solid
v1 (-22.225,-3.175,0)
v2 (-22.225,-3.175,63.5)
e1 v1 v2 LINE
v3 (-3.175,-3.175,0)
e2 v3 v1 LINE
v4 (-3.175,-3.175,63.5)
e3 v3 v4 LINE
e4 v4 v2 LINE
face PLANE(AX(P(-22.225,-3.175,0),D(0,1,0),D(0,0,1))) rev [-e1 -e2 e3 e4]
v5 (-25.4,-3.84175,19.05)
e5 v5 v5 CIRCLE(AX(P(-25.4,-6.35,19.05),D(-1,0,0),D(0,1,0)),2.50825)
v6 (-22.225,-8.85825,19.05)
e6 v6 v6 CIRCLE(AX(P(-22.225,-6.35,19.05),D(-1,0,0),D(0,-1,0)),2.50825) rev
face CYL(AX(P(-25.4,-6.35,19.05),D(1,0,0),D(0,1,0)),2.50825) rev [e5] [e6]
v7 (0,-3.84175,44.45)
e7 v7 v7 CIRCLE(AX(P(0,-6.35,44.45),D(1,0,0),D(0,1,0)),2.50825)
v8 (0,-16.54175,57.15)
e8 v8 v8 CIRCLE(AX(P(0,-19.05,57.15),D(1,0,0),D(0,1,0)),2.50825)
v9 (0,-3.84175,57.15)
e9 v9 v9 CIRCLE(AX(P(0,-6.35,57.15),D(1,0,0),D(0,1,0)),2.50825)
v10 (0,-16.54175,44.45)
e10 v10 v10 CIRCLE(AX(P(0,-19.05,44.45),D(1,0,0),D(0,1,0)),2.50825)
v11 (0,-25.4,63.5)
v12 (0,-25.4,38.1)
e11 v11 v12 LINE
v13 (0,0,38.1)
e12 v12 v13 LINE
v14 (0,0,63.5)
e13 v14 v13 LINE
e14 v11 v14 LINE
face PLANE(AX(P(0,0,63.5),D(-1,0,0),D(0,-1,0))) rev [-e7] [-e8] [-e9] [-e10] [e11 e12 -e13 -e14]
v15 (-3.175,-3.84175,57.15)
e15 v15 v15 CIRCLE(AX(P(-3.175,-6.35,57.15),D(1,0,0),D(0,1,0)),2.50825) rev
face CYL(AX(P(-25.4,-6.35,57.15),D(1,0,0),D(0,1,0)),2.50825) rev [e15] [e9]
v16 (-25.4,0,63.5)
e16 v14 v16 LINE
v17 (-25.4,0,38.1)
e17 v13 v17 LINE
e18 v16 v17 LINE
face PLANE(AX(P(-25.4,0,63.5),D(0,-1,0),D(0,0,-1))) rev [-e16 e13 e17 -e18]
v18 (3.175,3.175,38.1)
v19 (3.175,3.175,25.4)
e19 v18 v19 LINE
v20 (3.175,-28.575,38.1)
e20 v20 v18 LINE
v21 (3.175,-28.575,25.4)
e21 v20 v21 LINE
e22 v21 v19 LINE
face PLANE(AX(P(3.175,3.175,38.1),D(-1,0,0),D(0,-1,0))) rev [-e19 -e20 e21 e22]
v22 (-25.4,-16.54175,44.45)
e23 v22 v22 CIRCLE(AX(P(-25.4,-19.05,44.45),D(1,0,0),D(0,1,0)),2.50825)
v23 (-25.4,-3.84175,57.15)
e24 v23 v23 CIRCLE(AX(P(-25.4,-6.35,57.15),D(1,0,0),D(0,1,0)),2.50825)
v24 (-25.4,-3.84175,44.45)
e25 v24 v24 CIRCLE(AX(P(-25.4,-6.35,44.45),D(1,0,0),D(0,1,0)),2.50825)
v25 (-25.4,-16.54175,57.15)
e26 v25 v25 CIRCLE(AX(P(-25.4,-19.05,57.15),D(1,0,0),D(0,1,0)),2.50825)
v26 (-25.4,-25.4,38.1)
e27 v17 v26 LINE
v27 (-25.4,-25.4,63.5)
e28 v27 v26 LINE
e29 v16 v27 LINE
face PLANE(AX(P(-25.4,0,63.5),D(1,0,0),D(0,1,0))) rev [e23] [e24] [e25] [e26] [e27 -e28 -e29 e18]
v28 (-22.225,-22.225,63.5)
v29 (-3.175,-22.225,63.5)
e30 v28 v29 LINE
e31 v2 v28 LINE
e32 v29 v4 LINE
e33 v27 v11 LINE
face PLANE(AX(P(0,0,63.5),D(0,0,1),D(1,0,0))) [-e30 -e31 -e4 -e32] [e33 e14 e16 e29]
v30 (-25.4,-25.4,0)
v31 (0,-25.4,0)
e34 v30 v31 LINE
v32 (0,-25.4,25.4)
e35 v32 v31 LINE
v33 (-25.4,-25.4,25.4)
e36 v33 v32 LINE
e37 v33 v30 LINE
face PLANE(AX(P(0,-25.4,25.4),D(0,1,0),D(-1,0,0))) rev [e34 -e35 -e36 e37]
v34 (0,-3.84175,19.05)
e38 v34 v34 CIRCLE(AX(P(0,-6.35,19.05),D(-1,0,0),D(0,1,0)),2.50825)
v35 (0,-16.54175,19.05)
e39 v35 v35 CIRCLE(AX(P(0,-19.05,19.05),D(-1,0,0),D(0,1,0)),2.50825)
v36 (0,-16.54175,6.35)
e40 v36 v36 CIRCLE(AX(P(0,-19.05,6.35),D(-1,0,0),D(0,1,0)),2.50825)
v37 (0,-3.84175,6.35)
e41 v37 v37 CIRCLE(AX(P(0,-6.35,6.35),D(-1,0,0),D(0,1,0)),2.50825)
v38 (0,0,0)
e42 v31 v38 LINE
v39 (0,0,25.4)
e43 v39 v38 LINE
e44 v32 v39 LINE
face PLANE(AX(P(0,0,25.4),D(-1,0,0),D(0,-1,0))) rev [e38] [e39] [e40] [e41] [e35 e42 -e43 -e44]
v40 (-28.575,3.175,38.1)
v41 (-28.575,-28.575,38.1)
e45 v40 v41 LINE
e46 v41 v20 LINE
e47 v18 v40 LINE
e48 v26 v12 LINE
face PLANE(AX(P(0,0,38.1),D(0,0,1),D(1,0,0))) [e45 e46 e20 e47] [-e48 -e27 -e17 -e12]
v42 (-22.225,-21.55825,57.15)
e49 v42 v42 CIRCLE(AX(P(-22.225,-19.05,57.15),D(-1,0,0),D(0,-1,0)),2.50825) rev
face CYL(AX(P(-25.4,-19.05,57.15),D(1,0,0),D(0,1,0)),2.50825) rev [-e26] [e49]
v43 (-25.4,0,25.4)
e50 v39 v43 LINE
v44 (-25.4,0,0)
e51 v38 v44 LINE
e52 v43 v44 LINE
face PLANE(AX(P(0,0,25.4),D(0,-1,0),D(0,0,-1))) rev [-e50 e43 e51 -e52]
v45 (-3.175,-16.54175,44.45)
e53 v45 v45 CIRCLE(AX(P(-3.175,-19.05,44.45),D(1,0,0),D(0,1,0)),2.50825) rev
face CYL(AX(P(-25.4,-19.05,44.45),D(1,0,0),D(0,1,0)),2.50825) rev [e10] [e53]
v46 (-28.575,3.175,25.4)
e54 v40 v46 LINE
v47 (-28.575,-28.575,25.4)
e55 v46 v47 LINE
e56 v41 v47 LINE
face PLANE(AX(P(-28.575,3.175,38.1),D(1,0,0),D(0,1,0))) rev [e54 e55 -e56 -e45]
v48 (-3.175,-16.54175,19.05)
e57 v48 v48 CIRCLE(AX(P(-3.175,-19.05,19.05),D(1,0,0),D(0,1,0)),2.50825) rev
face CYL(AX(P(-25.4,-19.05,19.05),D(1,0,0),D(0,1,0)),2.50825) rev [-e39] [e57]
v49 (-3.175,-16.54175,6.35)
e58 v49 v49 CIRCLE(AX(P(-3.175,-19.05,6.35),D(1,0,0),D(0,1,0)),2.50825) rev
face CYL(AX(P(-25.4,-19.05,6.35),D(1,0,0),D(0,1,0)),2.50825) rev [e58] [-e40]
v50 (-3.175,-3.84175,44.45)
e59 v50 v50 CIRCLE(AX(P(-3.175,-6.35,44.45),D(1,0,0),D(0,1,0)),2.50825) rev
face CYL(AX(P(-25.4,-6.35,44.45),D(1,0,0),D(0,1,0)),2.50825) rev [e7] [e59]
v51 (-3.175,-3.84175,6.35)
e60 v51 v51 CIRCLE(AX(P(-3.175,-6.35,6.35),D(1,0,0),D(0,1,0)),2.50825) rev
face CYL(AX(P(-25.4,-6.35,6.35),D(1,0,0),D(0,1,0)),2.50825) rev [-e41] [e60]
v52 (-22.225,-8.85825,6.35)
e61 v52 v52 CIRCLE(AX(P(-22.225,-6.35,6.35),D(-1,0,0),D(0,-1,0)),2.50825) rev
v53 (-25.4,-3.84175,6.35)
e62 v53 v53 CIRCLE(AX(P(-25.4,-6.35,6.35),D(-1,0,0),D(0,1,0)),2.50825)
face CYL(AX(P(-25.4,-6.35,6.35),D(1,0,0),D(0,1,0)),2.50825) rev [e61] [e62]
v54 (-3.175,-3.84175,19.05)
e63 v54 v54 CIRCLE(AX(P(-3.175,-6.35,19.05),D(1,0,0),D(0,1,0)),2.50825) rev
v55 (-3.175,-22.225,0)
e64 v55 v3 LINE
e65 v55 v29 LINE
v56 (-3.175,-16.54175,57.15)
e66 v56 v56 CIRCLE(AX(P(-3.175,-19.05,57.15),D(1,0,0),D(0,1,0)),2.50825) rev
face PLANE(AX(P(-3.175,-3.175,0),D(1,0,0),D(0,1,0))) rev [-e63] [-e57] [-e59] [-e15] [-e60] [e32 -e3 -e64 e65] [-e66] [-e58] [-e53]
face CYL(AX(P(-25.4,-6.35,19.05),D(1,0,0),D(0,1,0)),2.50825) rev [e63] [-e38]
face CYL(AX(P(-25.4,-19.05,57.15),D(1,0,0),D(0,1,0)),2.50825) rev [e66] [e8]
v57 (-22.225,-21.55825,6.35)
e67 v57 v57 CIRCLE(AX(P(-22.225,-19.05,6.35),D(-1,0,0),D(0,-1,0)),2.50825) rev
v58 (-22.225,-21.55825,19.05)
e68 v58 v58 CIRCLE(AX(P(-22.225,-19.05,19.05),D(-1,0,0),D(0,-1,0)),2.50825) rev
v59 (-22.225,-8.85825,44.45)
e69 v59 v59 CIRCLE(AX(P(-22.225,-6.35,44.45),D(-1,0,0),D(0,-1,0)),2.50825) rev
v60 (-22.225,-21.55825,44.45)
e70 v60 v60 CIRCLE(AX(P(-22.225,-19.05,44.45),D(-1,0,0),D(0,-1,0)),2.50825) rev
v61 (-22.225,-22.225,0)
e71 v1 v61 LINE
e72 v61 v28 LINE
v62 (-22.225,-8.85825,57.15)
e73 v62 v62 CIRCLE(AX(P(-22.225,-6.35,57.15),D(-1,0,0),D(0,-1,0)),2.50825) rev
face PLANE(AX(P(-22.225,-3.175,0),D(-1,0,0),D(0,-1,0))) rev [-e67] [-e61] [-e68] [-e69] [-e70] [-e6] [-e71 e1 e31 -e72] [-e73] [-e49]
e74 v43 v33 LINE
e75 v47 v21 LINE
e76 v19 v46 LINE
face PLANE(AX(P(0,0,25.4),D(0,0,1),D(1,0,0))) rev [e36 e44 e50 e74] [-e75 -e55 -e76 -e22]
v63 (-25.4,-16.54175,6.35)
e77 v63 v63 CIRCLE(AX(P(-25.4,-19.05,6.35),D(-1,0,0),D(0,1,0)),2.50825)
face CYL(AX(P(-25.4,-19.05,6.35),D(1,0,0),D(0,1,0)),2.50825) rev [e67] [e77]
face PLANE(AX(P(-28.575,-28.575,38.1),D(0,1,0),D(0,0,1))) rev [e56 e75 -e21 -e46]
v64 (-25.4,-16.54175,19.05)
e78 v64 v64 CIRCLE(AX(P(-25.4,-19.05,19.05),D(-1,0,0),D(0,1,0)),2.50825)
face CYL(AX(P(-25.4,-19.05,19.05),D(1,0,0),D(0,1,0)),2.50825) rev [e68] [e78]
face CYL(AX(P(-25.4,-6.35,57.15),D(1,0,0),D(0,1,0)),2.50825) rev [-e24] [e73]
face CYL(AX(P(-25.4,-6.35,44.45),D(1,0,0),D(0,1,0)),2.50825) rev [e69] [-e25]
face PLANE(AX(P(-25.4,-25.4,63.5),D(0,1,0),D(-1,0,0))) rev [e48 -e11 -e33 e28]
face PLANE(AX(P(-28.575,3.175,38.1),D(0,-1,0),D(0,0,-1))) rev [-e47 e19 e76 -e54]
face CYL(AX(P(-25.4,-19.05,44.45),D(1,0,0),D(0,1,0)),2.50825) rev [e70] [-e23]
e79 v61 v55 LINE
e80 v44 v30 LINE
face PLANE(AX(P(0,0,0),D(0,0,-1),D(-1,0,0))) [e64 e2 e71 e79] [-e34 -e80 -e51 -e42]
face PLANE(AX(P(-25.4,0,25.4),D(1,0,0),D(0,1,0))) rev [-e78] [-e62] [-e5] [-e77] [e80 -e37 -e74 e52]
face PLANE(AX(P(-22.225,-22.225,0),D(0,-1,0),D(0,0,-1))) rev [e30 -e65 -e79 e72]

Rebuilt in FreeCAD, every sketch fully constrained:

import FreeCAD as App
import Part
import Sketcher
Q = App.Units.Quantity

doc = App.newDocument("Part")
body = doc.addObject("PartDesign::Body", "Body")

sketch1 = body.newObject("Sketcher::SketchObject", "Sketch")
sketch1.AttachmentSupport = (doc.getObject("XY_Plane"), [""])
sketch1.MapMode = "FlatFace"
sketch1.addGeometry([
    Part.LineSegment(App.Vector(-25.4, 0, 0), App.Vector(-25.4, -25.4, 0)),
    Part.LineSegment(App.Vector(-25.4, -25.4, 0), App.Vector(0, -25.4, 0)),
    Part.LineSegment(App.Vector(0, -25.4, 0), App.Vector(0, 0, 0)),
    Part.LineSegment(App.Vector(0, 0, 0), App.Vector(-25.4, 0, 0)),
], False)
sketch1.addConstraint([
    Sketcher.Constraint("Coincident", 0, 2, 1, 1),
    Sketcher.Constraint("Coincident", 1, 2, 2, 1),
    Sketcher.Constraint("Coincident", 2, 2, 3, 1),
    Sketcher.Constraint("Coincident", 3, 2, 0, 1),
    Sketcher.Constraint("Vertical", 0),
    Sketcher.Constraint("Horizontal", 1),
    Sketcher.Constraint("Vertical", 2),
    Sketcher.Constraint("Horizontal", 3),
    Sketcher.Constraint("Coincident", 2, 2, -1, 1),
    Sketcher.Constraint("Equal", 3, 0),
    Sketcher.Constraint("DistanceX", 1, 1, 1, 2, Q("1 in")),
])
pad1 = body.newObject("PartDesign::Pad", "Pad")
pad1.Profile = sketch1
pad1.Length = Q("1 in")

sketch2 = body.newObject("Sketcher::SketchObject", "Sketch001")
sketch2.AttachmentSupport = (doc.getObject("XY_Plane"), [""])
sketch2.MapMode = "FlatFace"
sketch2.AttachmentOffset = App.Placement(App.Vector(0, 0, 1 * 25.4), App.Rotation())
sketch2.addGeometry([
    Part.LineSegment(App.Vector(-28.575, 3.175, 0), App.Vector(-28.575, -28.575, 0)),
    Part.LineSegment(App.Vector(-28.575, -28.575, 0), App.Vector(3.175, -28.575, 0)),
    Part.LineSegment(App.Vector(3.175, -28.575, 0), App.Vector(3.175, 3.175, 0)),
    Part.LineSegment(App.Vector(3.175, 3.175, 0), App.Vector(-28.575, 3.175, 0)),
], False)
sketch2.addConstraint([
    Sketcher.Constraint("Coincident", 0, 2, 1, 1),
    Sketcher.Constraint("Coincident", 1, 2, 2, 1),
    Sketcher.Constraint("Coincident", 2, 2, 3, 1),
    Sketcher.Constraint("Coincident", 3, 2, 0, 1),
    Sketcher.Constraint("Vertical", 0),
    Sketcher.Constraint("Horizontal", 1),
    Sketcher.Constraint("Vertical", 2),
    Sketcher.Constraint("Horizontal", 3),
    Sketcher.Constraint("Equal", 3, 0),
    Sketcher.Constraint("DistanceX", 1, 1, 1, 2, Q("1.25 in")),
    Sketcher.Constraint("DistanceX", 0, 2, -1, 1, Q("1.125 in")),
    Sketcher.Constraint("DistanceY", 0, 2, -1, 1, Q("1.125 in")),
])
pad2 = body.newObject("PartDesign::Pad", "Pad001")
pad2.Profile = sketch2
pad2.Length = Q("0.5 in")

sketch3 = body.newObject("Sketcher::SketchObject", "Sketch002")
sketch3.AttachmentSupport = (doc.getObject("XY_Plane"), [""])
sketch3.MapMode = "FlatFace"
sketch3.AttachmentOffset = App.Placement(App.Vector(0, 0, 1.5 * 25.4), App.Rotation())
sketch3.addGeometry([
    Part.LineSegment(App.Vector(-25.4, 0, 0), App.Vector(-25.4, -25.4, 0)),
    Part.LineSegment(App.Vector(-25.4, -25.4, 0), App.Vector(0, -25.4, 0)),
    Part.LineSegment(App.Vector(0, -25.4, 0), App.Vector(0, 0, 0)),
    Part.LineSegment(App.Vector(0, 0, 0), App.Vector(-25.4, 0, 0)),
], False)
sketch3.addConstraint([
    Sketcher.Constraint("Coincident", 0, 2, 1, 1),
    Sketcher.Constraint("Coincident", 1, 2, 2, 1),
    Sketcher.Constraint("Coincident", 2, 2, 3, 1),
    Sketcher.Constraint("Coincident", 3, 2, 0, 1),
    Sketcher.Constraint("Vertical", 0),
    Sketcher.Constraint("Horizontal", 1),
    Sketcher.Constraint("Vertical", 2),
    Sketcher.Constraint("Horizontal", 3),
    Sketcher.Constraint("Coincident", 2, 2, -1, 1),
    Sketcher.Constraint("Equal", 3, 0),
    Sketcher.Constraint("DistanceX", 1, 1, 1, 2, Q("1 in")),
])
pad3 = body.newObject("PartDesign::Pad", "Pad002")
pad3.Profile = sketch3
pad3.Length = Q("1 in")

sketch4 = body.newObject("Sketcher::SketchObject", "Sketch003")
sketch4.AttachmentSupport = (doc.getObject("YZ_Plane"), [""])
sketch4.MapMode = "FlatFace"
sketch4.addGeometry([
    Part.Circle(App.Vector(-6.35, 57.15, 0), App.Vector(0, 0, 1), 2.50825),
    Part.Circle(App.Vector(-6.35, 44.45, 0), App.Vector(0, 0, 1), 2.50825),
    Part.Circle(App.Vector(-19.05, 57.15, 0), App.Vector(0, 0, 1), 2.50825),
    Part.Circle(App.Vector(-19.05, 44.45, 0), App.Vector(0, 0, 1), 2.50825),
], False)
sketch4.addConstraint([
    Sketcher.Constraint("Equal", 0, 1),
    Sketcher.Constraint("Equal", 1, 2),
    Sketcher.Constraint("Equal", 2, 3),
    Sketcher.Constraint("Horizontal", 0, 3, 2, 3),
    Sketcher.Constraint("Horizontal", 1, 3, 3, 3),
    Sketcher.Constraint("Vertical", 0, 3, 1, 3),
    Sketcher.Constraint("Vertical", 2, 3, 3, 3),
    Sketcher.Constraint("Diameter", 0, Q("0.1975 in")),
    Sketcher.Constraint("DistanceY", 1, 3, 0, 3, Q("0.5 in")),
    Sketcher.Constraint("DistanceX", 2, 3, 0, 3, Q("0.5 in")),
    Sketcher.Constraint("DistanceX", 0, 3, -1, 1, Q("0.25 in")),
    Sketcher.Constraint("DistanceY", -1, 1, 0, 3, Q("2.25 in")),
])
pocket1 = body.newObject("PartDesign::Pocket", "Pocket")
pocket1.Profile = sketch4
pocket1.Length = Q("1 in")

sketch5 = body.newObject("Sketcher::SketchObject", "Sketch004")
sketch5.AttachmentSupport = (doc.getObject("XY_Plane"), [""])
sketch5.MapMode = "FlatFace"
sketch5.AttachmentOffset = App.Placement(App.Vector(0, 0, 2.5 * 25.4), App.Rotation())
sketch5.addGeometry([
    Part.LineSegment(App.Vector(-22.225, -3.175, 0), App.Vector(-22.225, -22.225, 0)),
    Part.LineSegment(App.Vector(-22.225, -22.225, 0), App.Vector(-3.175, -22.225, 0)),
    Part.LineSegment(App.Vector(-3.175, -22.225, 0), App.Vector(-3.175, -3.175, 0)),
    Part.LineSegment(App.Vector(-3.175, -3.175, 0), App.Vector(-22.225, -3.175, 0)),
], False)
sketch5.addConstraint([
    Sketcher.Constraint("Coincident", 0, 2, 1, 1),
    Sketcher.Constraint("Coincident", 1, 2, 2, 1),
    Sketcher.Constraint("Coincident", 2, 2, 3, 1),
    Sketcher.Constraint("Coincident", 3, 2, 0, 1),
    Sketcher.Constraint("Vertical", 0),
    Sketcher.Constraint("Horizontal", 1),
    Sketcher.Constraint("Vertical", 2),
    Sketcher.Constraint("Horizontal", 3),
    Sketcher.Constraint("Equal", 3, 0),
    Sketcher.Constraint("DistanceX", 1, 1, 1, 2, Q("0.75 in")),
    Sketcher.Constraint("DistanceX", 0, 2, -1, 1, Q("0.875 in")),
    Sketcher.Constraint("DistanceY", 0, 2, -1, 1, Q("0.875 in")),
])
pocket2 = body.newObject("PartDesign::Pocket", "Pocket001")
pocket2.Profile = sketch5
pocket2.Length = Q("2.5 in")
doc.recompute()

datumplane = body.newObject("PartDesign::Plane", "DatumPlane")
datumplane.AttachmentSupport = (doc.getObject("XY_Plane"), [""])
datumplane.MapMode = "FlatFace"
datumplane.AttachmentOffset = App.Placement(App.Vector(0, 0, 1.25 * 25.4), App.Rotation())
mirrored = body.newObject("PartDesign::Mirrored", "Mirrored")
mirrored.Originals = [pocket1]
mirrored.MirrorPlane = (datumplane, [""])
body.Tip = mirrored

doc.recompute()
